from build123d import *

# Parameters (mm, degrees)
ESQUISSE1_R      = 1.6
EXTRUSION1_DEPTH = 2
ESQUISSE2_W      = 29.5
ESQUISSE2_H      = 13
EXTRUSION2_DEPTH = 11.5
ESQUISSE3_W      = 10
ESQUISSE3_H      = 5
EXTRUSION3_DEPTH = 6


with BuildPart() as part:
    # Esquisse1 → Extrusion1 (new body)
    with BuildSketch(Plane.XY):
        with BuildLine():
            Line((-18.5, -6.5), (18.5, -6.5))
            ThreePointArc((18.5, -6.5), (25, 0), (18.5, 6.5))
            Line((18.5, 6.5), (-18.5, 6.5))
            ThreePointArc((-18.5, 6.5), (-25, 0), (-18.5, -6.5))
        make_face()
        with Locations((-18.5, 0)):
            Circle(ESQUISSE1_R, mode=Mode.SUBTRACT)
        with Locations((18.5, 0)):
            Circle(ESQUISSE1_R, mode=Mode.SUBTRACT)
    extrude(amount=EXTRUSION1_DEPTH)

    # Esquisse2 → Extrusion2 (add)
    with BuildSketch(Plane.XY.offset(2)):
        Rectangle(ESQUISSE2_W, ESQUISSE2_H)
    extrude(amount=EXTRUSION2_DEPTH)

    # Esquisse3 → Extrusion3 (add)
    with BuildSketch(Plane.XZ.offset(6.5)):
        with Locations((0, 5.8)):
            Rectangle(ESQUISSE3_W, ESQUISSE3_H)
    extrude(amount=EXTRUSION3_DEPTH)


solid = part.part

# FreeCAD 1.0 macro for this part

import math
import FreeCAD as App
import Part
import Sketcher
from FreeCAD import Vector

doc = App.newDocument("Part")
body = doc.addObject("PartDesign::Body", "Body")

# Sketch on XY plane
sketch1 = body.newObject("Sketcher::SketchObject", "Sketch")
sketch1.AttachmentSupport = (doc.getObject("XY_Plane"), [""])
sketch1.MapMode = "FlatFace"
sketch1.addGeometry([
    Part.LineSegment(Vector(-18.5, -6.5, 0), Vector(18.5, -6.5, 0)),  # 0
    Part.ArcOfCircle(Part.Circle(Vector(18.5, 0, 0), Vector(0, 0, 1), 6.5), math.radians(-90), math.radians(90)),  # 1
    Part.LineSegment(Vector(18.5, 6.5, 0), Vector(-18.5, 6.5, 0)),  # 2
    Part.ArcOfCircle(Part.Circle(Vector(-18.5, 0, 0), Vector(0, 0, 1), 6.5), math.radians(90), math.radians(270)),  # 3
    Part.Circle(Vector(-18.5, 0, 0), Vector(0, 0, 1), 1.6),  # 4
    Part.Circle(Vector(18.5, 0, 0), Vector(0, 0, 1), 1.6),  # 5
], False)
sketch1.addConstraint([
    Sketcher.Constraint("Tangent", 0, 2, 1, 1),
    Sketcher.Constraint("Tangent", 1, 2, 2, 1),
    Sketcher.Constraint("Tangent", 2, 2, 3, 1),
    Sketcher.Constraint("Tangent", 3, 2, 0, 1),
    Sketcher.Constraint("Horizontal", 0),
    Sketcher.Constraint("Horizontal", 2),
    Sketcher.Constraint("Coincident", 4, 3, 3, 3),
    Sketcher.Constraint("Coincident", 5, 3, 1, 3),
    Sketcher.Constraint("Equal", 4, 5),
    Sketcher.Constraint("Symmetric", 1, 3, 3, 3, -1, 1),
    Sketcher.Constraint("Diameter", 4, 3.2),
    Sketcher.Constraint("Radius", 1, 6.5),
    Sketcher.Constraint("DistanceX", 0, 1, 0, 2, 37.0),
])
pad1 = body.newObject("PartDesign::Pad", "Pad")
pad1.Profile = sketch1
pad1.Length = 2

# Sketch on XY plane
sketch2 = body.newObject("Sketcher::SketchObject", "Sketch001")
sketch2.AttachmentSupport = (doc.getObject("XY_Plane"), [""])
sketch2.MapMode = "FlatFace"
sketch2.AttachmentOffset = App.Placement(Vector(0, 0, 2), App.Rotation())
sketch2.addGeometry([
    Part.LineSegment(Vector(-15, 6, 0), Vector(-15, -6, 0)),
    Part.LineSegment(Vector(-15, -6, 0), Vector(15, -6, 0)),
    Part.LineSegment(Vector(15, -6, 0), Vector(15, 6, 0)),
    Part.LineSegment(Vector(15, 6, 0), Vector(-15, 6, 0)),
], False)
sketch2.addConstraint([
    Sketcher.Constraint("Coincident", 0, 2, 1, 1),
    Sketcher.Constraint("Coincident", 1, 2, 2, 1),
    Sketcher.Constraint("Coincident", 2, 2, 3, 1),
    Sketcher.Constraint("Coincident", 3, 2, 0, 1),
    Sketcher.Constraint("Vertical", 0),
    Sketcher.Constraint("Horizontal", 1),
    Sketcher.Constraint("Vertical", 2),
    Sketcher.Constraint("Horizontal", 3),
    Sketcher.Constraint("Symmetric", 0, 2, 2, 2, -1, 1),
    Sketcher.Constraint("DistanceY", 0, 2, 0, 1, 13.0),
    Sketcher.Constraint("DistanceX", 1, 1, 1, 2, 29.5),
])
pad2 = body.newObject("PartDesign::Pad", "Pad001")
pad2.Profile = sketch2
pad2.Length = 11.5

# Sketch on XZ plane
sketch3 = body.newObject("Sketcher::SketchObject", "Sketch002")
sketch3.AttachmentSupport = (doc.getObject("XZ_Plane"), [""])
sketch3.MapMode = "FlatFace"
sketch3.AttachmentOffset = App.Placement(Vector(0, 0, 6.5), App.Rotation())
sketch3.addGeometry([
    Part.LineSegment(Vector(-5, 8, 0), Vector(-5, 3, 0)),
    Part.LineSegment(Vector(-5, 3, 0), Vector(5, 3, 0)),
    Part.LineSegment(Vector(5, 3, 0), Vector(5, 8, 0)),
    Part.LineSegment(Vector(5, 8, 0), Vector(-5, 8, 0)),
], False)
sketch3.addConstraint([
    Sketcher.Constraint("Coincident", 0, 2, 1, 1),
    Sketcher.Constraint("Coincident", 1, 2, 2, 1),
    Sketcher.Constraint("Coincident", 2, 2, 3, 1),
    Sketcher.Constraint("Coincident", 3, 2, 0, 1),
    Sketcher.Constraint("Vertical", 0),
    Sketcher.Constraint("Horizontal", 1),
    Sketcher.Constraint("Vertical", 2),
    Sketcher.Constraint("Horizontal", 3),
    Sketcher.Constraint("DistanceX", 1, 1, 1, 2, 10.0),
    Sketcher.Constraint("DistanceY", 0, 2, 0, 1, 5.0),
    Sketcher.Constraint("DistanceX", 0, 2, -1, 1, 5.0),
    Sketcher.Constraint("DistanceY", -1, 1, 0, 2, 3.3),
])
pad3 = body.newObject("PartDesign::Pad", "Pad002")
pad3.Profile = sketch3
pad3.Length = 6

doc.recompute()
